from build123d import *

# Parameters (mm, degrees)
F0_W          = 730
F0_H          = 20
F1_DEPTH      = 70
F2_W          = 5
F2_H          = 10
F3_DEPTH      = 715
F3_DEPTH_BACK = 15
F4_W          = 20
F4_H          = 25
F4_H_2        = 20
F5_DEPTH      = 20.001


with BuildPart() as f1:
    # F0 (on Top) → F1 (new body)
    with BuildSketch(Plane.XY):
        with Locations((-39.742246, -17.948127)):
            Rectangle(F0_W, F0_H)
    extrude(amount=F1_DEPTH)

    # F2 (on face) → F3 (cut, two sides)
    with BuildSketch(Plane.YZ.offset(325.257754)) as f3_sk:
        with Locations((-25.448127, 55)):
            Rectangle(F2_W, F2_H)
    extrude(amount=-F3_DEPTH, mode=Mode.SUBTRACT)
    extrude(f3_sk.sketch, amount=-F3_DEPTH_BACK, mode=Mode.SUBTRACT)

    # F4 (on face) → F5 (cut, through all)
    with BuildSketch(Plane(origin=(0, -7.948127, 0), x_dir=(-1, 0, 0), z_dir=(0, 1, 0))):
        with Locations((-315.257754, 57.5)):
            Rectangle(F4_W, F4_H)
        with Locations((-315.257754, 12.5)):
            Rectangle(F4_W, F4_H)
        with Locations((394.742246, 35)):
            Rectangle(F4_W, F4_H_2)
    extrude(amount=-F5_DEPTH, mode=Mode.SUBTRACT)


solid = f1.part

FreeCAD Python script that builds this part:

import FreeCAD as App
import Part
import Sketcher

V = App.Vector


def add_polygon(sketch, points):
    """Adds a closed chain of lines whose ends are joined by coincident constraints."""
    first, n = sketch.GeometryCount, len(points)
    for a, b in zip(points, points[1:] + points[:1]):
        sketch.addGeometry(Part.LineSegment(App.Vector(*a, 0), App.Vector(*b, 0)), False)
    for i in range(n):
        sketch.addConstraint(Sketcher.Constraint("Coincident", first + i, 2, first + (i + 1) % n, 1))

doc = App.newDocument("Part")
body = doc.addObject("PartDesign::Body", "Body")

sketch1 = body.newObject("Sketcher::SketchObject", "Sketch")
sketch1.AttachmentSupport = (doc.getObject("XY_Plane"), [""])
sketch1.MapMode = "FlatFace"
add_polygon(sketch1, [(-405, -8), (-405, -28), (325, -28), (325, -8)])
sketch1.addConstraint(Sketcher.Constraint("Vertical", 0))
sketch1.addConstraint(Sketcher.Constraint("Horizontal", 1))
sketch1.addConstraint(Sketcher.Constraint("Vertical", 2))
sketch1.addConstraint(Sketcher.Constraint("Horizontal", 3))
sketch1.addConstraint(Sketcher.Constraint("DistanceX", 1, 1, 1, 2, 730.0))
sketch1.addConstraint(Sketcher.Constraint("DistanceY", 0, 2, 0, 1, 20.0))
sketch1.addConstraint(Sketcher.Constraint("DistanceX", 0, 2, -1, 1, 404.742246))
sketch1.addConstraint(Sketcher.Constraint("DistanceY", 0, 2, -1, 1, 27.948127))
pad1 = body.newObject("PartDesign::Pad", "Pad")
pad1.Profile = sketch1
pad1.Length = 70

sketch2 = body.newObject("Sketcher::SketchObject", "Sketch001")
sketch2.AttachmentSupport = (doc.getObject("YZ_Plane"), [""])
sketch2.MapMode = "FlatFace"
sketch2.AttachmentOffset = App.Placement(V(0, 0, 325.257754), App.Rotation())
add_polygon(sketch2, [(-28, 60), (-28, 50), (-23, 50), (-23, 60)])
sketch2.addConstraint(Sketcher.Constraint("Vertical", 0))
sketch2.addConstraint(Sketcher.Constraint("Horizontal", 1))
sketch2.addConstraint(Sketcher.Constraint("Vertical", 2))
sketch2.addConstraint(Sketcher.Constraint("Horizontal", 3))
sketch2.addConstraint(Sketcher.Constraint("DistanceX", 1, 1, 1, 2, 5.0))
sketch2.addConstraint(Sketcher.Constraint("DistanceY", 0, 2, 0, 1, 10.0))
sketch2.addConstraint(Sketcher.Constraint("DistanceY", -1, 1, 0, 2, 50.0))
sketch2.addConstraint(Sketcher.Constraint("DistanceX", 0, 2, -1, 1, 27.948127))
pocket1 = body.newObject("PartDesign::Pocket", "Pocket")
pocket1.Profile = sketch2
pocket1.Length = 715
pocket2 = body.newObject("PartDesign::Pocket", "Pocket001")
pocket2.Profile = sketch2
pocket2.Length = 15

sketch3 = body.newObject("Sketcher::SketchObject", "Sketch002")
sketch3.AttachmentSupport = (doc.getObject("XZ_Plane"), [""])
sketch3.MapMode = "FlatFace"
sketch3.AttachmentOffset = App.Placement(V(0, 0, 7.948127), App.Rotation())
add_polygon(sketch3, [(325, 70), (325, 45), (305, 45), (305, 70)])
add_polygon(sketch3, [(325, 25), (325, 0), (305, 0), (305, 25)])
add_polygon(sketch3, [(-385, 45), (-385, 25), (-405, 25), (-405, 45)])
sketch3.addConstraint(Sketcher.Constraint("Vertical", 0))
sketch3.addConstraint(Sketcher.Constraint("Horizontal", 1))
sketch3.addConstraint(Sketcher.Constraint("Vertical", 2))
sketch3.addConstraint(Sketcher.Constraint("Horizontal", 3))
sketch3.addConstraint(Sketcher.Constraint("Vertical", 4))
sketch3.addConstraint(Sketcher.Constraint("Horizontal", 5))
sketch3.addConstraint(Sketcher.Constraint("Vertical", 6))
sketch3.addConstraint(Sketcher.Constraint("Horizontal", 7))
sketch3.addConstraint(Sketcher.Constraint("Vertical", 8))
sketch3.addConstraint(Sketcher.Constraint("Horizontal", 9))
sketch3.addConstraint(Sketcher.Constraint("Vertical", 10))
sketch3.addConstraint(Sketcher.Constraint("Horizontal", 11))
sketch3.addConstraint(Sketcher.Constraint("PointOnObject", 4, 2, -1))
sketch3.addConstraint(Sketcher.Constraint("Horizontal", 7, 2, 8, 2))
sketch3.addConstraint(Sketcher.Constraint("Horizontal", 1, 2, 10, 2))
sketch3.addConstraint(Sketcher.Constraint("Vertical", 3, 2, 4, 2))
sketch3.addConstraint(Sketcher.Constraint("Vertical", 2, 2, 5, 2))
sketch3.addConstraint(Sketcher.Constraint("Equal", 7, 9))
sketch3.addConstraint(Sketcher.Constraint("Equal", 2, 4))
sketch3.addConstraint(Sketcher.Constraint("Equal", 11, 8))
sketch3.addConstraint(Sketcher.Constraint("DistanceX", 1, 2, 1, 1, 20.0))
sketch3.addConstraint(Sketcher.Constraint("DistanceY", 0, 2, 0, 1, 25.0))
sketch3.addConstraint(Sketcher.Constraint("DistanceX", 8, 2, 6, 2, 690.0))
sketch3.addConstraint(Sketcher.Constraint("DistanceX", -1, 1, 0, 2, 325.257754))
pocket3 = body.newObject("PartDesign::Pocket", "Pocket002")
pocket3.Profile = sketch3
pocket3.Type = "ThroughAll"
pocket3.Reversed = True

doc.recompute()
